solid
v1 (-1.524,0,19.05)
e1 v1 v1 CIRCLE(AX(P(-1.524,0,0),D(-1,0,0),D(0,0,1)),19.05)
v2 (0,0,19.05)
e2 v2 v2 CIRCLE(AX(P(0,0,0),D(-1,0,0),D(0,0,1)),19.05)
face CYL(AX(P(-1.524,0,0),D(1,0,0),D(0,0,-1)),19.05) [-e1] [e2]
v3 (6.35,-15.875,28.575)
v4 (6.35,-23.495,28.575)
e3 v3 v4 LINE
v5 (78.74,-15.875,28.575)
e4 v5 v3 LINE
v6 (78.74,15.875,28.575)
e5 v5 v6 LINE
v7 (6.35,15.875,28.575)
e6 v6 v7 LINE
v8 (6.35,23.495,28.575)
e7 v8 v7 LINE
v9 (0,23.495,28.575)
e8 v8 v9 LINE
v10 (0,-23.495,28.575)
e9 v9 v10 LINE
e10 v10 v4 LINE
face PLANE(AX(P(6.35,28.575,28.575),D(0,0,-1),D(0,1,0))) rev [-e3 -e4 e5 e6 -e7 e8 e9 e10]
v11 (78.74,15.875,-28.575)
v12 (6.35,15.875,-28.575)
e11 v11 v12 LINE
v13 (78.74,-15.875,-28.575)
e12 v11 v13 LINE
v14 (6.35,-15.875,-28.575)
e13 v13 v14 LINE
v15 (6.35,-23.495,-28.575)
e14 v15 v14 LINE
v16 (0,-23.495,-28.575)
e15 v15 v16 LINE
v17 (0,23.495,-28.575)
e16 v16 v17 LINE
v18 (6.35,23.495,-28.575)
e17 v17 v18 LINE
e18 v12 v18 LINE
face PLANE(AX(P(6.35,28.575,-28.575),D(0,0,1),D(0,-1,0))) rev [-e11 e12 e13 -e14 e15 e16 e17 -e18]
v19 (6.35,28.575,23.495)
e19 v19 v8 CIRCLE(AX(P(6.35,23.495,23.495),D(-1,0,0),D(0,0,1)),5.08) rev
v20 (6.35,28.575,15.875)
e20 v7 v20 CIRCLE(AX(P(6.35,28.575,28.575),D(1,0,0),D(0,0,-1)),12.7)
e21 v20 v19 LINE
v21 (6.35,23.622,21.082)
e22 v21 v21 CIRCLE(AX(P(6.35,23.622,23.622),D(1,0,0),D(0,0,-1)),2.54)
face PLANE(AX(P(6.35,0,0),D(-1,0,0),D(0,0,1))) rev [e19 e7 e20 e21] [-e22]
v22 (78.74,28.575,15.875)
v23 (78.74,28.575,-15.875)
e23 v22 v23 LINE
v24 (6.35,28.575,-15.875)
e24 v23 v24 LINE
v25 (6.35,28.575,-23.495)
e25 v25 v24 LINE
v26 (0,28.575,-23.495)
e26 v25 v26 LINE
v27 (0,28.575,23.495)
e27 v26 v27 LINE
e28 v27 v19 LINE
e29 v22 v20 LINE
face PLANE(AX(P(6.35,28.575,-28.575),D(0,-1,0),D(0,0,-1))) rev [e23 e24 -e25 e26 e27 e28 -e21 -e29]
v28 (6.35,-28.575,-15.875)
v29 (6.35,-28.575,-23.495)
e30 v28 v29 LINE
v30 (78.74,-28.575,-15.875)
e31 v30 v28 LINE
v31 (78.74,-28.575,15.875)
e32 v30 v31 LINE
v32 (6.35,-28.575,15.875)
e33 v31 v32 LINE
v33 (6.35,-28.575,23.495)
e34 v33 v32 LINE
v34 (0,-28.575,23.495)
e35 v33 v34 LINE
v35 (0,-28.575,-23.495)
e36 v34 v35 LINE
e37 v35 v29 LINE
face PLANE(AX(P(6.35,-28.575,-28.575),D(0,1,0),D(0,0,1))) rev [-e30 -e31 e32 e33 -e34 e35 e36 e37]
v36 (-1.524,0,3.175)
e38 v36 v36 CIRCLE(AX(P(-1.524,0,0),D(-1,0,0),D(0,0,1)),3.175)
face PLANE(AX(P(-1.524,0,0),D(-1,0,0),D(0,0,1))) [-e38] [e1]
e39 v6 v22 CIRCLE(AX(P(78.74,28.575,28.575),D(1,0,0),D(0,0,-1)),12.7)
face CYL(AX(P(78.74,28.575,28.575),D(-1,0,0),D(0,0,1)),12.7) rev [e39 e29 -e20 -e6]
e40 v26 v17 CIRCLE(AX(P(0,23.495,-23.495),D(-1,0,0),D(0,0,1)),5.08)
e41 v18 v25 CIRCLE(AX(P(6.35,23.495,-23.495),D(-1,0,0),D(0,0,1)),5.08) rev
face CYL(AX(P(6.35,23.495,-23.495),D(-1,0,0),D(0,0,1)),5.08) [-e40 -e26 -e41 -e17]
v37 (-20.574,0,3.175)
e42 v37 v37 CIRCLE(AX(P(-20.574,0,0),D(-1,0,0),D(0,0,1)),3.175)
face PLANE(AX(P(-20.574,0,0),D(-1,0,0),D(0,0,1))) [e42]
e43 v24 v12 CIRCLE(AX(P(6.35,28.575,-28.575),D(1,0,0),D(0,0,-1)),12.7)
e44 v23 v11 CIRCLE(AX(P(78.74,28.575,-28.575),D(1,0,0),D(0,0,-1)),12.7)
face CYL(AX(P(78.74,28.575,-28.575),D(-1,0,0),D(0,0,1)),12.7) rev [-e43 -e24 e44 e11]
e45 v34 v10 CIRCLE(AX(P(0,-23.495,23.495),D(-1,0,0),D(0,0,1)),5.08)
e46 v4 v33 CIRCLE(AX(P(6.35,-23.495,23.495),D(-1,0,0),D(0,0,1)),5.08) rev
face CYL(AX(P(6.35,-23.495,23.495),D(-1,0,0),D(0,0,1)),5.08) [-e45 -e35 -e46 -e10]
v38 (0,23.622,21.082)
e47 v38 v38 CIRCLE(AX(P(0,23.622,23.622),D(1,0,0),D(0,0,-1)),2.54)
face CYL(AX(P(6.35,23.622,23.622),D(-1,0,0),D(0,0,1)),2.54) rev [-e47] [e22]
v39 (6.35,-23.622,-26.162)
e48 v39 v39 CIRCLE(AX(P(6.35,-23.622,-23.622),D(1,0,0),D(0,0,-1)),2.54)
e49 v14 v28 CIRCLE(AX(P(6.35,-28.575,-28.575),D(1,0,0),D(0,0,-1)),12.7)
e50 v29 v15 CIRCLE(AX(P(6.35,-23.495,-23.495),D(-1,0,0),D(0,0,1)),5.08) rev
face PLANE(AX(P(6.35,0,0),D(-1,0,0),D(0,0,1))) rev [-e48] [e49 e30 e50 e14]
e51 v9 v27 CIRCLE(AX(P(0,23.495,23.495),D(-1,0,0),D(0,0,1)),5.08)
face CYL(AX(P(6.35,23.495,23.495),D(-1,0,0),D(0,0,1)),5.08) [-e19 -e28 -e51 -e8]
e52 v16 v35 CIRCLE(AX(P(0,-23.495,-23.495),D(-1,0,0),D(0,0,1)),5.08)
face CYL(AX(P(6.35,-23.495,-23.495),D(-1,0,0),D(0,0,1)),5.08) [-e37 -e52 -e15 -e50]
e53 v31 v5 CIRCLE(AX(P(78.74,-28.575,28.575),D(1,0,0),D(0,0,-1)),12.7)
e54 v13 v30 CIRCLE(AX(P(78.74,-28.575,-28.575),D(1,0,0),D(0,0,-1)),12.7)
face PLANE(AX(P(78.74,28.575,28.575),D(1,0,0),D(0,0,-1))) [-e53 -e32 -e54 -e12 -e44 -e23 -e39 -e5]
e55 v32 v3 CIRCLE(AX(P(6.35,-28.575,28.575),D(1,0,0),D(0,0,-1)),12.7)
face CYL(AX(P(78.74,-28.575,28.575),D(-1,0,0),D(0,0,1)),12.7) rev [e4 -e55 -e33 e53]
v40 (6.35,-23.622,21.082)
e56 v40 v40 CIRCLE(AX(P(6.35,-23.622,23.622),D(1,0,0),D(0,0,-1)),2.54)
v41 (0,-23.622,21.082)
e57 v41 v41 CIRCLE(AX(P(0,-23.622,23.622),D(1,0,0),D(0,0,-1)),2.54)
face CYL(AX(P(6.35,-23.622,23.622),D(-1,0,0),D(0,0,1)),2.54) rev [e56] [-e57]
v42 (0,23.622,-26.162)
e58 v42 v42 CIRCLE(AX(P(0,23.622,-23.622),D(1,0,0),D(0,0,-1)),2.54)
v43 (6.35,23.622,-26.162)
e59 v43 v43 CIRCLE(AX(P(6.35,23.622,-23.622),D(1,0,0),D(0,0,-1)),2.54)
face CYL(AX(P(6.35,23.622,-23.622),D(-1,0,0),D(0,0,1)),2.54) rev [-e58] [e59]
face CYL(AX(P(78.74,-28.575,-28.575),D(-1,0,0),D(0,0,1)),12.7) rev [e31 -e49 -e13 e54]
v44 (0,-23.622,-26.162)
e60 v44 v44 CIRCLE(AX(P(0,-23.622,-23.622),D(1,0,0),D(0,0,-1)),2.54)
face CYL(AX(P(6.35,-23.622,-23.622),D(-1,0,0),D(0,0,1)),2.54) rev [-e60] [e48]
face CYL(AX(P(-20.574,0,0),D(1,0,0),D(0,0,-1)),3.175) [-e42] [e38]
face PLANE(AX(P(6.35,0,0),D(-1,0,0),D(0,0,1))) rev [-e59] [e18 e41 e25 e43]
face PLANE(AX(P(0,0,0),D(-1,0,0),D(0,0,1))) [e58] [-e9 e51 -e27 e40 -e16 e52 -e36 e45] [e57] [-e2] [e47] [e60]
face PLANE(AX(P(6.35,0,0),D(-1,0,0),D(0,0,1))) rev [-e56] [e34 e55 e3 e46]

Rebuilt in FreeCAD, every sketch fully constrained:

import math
import FreeCAD as App
import Part
import Sketcher
from FreeCAD import Vector
Q = App.Units.Quantity


def edges_at(feature, points):
    """Names of the edges that pass closest to the given points."""
    edges = feature.Shape.Edges
    near = lambda p: min(range(len(edges)), key=lambda i: edges[i].distToShape(Part.Vertex(*p))[0])
    return sorted({f"Edge{near(p) + 1}" for p in points})


def add_polygon(sketch, points):
    """Adds a closed chain of lines whose ends are joined by coincident constraints."""
    first, n = sketch.GeometryCount, len(points)
    for a, b in zip(points, points[1:] + points[:1]):
        sketch.addGeometry(Part.LineSegment(App.Vector(*a, 0), App.Vector(*b, 0)), False)
    for i in range(n):
        sketch.addConstraint(Sketcher.Constraint("Coincident", first + i, 2, first + (i + 1) % n, 1))

doc = App.newDocument("Part")
body = doc.addObject("PartDesign::Body", "Body")

sketch1 = doc.addObject("Sketcher::SketchObject", "Sketch")
body.addObject(sketch1)
sketch1.AttachmentSupport = (doc.YZ_Plane, [""])
sketch1.MapMode = "FlatFace"
add_polygon(sketch1, [(28.6, 28.6), (-28.6, 28.6), (-28.6, -28.6), (28.6, -28.6)])
sketch1.addGeometry(Part.Circle(Vector(-23.6, 23.6, 0), Vector(0, 0, 1), 2.5), False)
sketch1.addGeometry(Part.Circle(Vector(-23.6, -23.6, 0), Vector(0, 0, 1), 2.5), False)
sketch1.addGeometry(Part.Circle(Vector(23.6, 23.6, 0), Vector(0, 0, 1), 2.5), False)
sketch1.addGeometry(Part.Circle(Vector(23.6, -23.6, 0), Vector(0, 0, 1), 2.5), False)
sketch1.addConstraint([
    Sketcher.Constraint("Horizontal", 0),
    Sketcher.Constraint("Vertical", 1),
    Sketcher.Constraint("Horizontal", 2),
    Sketcher.Constraint("Vertical", 3),
    Sketcher.Constraint("Equal", 4, 5),
    Sketcher.Constraint("Equal", 5, 6),
    Sketcher.Constraint("Equal", 6, 7),
    Sketcher.Constraint("Symmetric", 5, 3, 6, 3, -1, 1),
    Sketcher.Constraint("Symmetric", 4, 3, 7, 3, -1, 1),
    Sketcher.Constraint("Symmetric", 0, 2, 2, 2, -1, 1),
    Sketcher.Constraint("Symmetric", 4, 3, 6, 3, -2),
    Sketcher.Constraint("Equal", 2, 1),
    Sketcher.Constraint("Diameter", 4, Q("0.2 in")),
    Sketcher.Constraint("DistanceX", 0, 2, 0, 1, Q("2.25 in")),
    Sketcher.Constraint("DistanceX", 4, 3, -1, 1, Q("0.93 in")),
    Sketcher.Constraint("DistanceY", -1, 1, 4, 3, Q("0.93 in")),
])
pad1 = doc.addObject("PartDesign::Pad", "Pad")
body.addObject(pad1)
pad1.Profile = sketch1
pad1.Length = Q("0.25 in")
doc.recompute()

fillet = doc.addObject("PartDesign::Fillet", "Fillet")
body.addObject(fillet)
fillet.Base = (pad1, edges_at(pad1, [
    (3.175, 28.575, 28.575),
    (3.175, 28.575, -28.575),
    (3.175, -28.575, -28.575),
    (3.175, -28.575, 28.575),
]))
fillet.Radius = Q("0.2 in")

sketch2 = doc.addObject("Sketcher::SketchObject", "Sketch001")
body.addObject(sketch2)
sketch2.AttachmentSupport = (doc.YZ_Plane, [""])
sketch2.MapMode = "FlatFace"
sketch2.addGeometry(Part.Circle(Vector(0, 0, 0), Vector(0, 0, 1), 19), False)
sketch2.addConstraint([
    Sketcher.Constraint("Coincident", 0, 3, -1, 1),
    Sketcher.Constraint("Diameter", 0, Q("1.5 in")),
])
pad2 = doc.addObject("PartDesign::Pad", "Pad001")
body.addObject(pad2)
pad2.Profile = sketch2
pad2.Length = Q("0.06 in")
pad2.Reversed = True

sketch3 = doc.addObject("Sketcher::SketchObject", "Sketch002")
body.addObject(sketch3)
sketch3.AttachmentSupport = (doc.YZ_Plane, [""])
sketch3.MapMode = "FlatFace"
sketch3.AttachmentOffset = App.Placement(Vector(0, 0, -0.06 * 25.4), App.Rotation())
sketch3.addGeometry(Part.Circle(Vector(0, 0, 0), Vector(0, 0, 1), 3.2), False)
sketch3.addConstraint([
    Sketcher.Constraint("Coincident", 0, 3, -1, 1),
    Sketcher.Constraint("Diameter", 0, Q("0.25 in")),
])
pad3 = doc.addObject("PartDesign::Pad", "Pad002")
body.addObject(pad3)
pad3.Profile = sketch3
pad3.Length = Q("0.75 in")
pad3.Reversed = True

sketch4 = doc.addObject("Sketcher::SketchObject", "Sketch003")
body.addObject(sketch4)
sketch4.AttachmentSupport = (doc.YZ_Plane, [""])
sketch4.MapMode = "FlatFace"
sketch4.AttachmentOffset = App.Placement(Vector(0, 0, 0.25 * 25.4), App.Rotation())
sketch4.addGeometry([
    Part.LineSegment(Vector(29, -16, 0), Vector(29, 16, 0)),
    Part.ArcOfCircle(Part.Circle(Vector(29, 29, 0), Vector(0, 0, 1), 13), math.radians(180), math.radians(270)),
    Part.LineSegment(Vector(16, 29, 0), Vector(-16, 29, 0)),
    Part.ArcOfCircle(Part.Circle(Vector(-29, 29, 0), Vector(0, 0, 1), 13), math.radians(-90), math.radians(0)),
    Part.LineSegment(Vector(-29, 16, 0), Vector(-29, -16, 0)),
    Part.ArcOfCircle(Part.Circle(Vector(-29, -29, 0), Vector(0, 0, 1), 13), math.radians(0), math.radians(90)),
    Part.LineSegment(Vector(-16, -29, 0), Vector(16, -29, 0)),
    Part.ArcOfCircle(Part.Circle(Vector(29, -29, 0), Vector(0, 0, 1), 13), math.radians(90), math.radians(180)),
], False)
sketch4.addConstraint([
    Sketcher.Constraint("Coincident", 0, 2, 1, 2),
    Sketcher.Constraint("Coincident", 1, 1, 2, 1),
    Sketcher.Constraint("Coincident", 2, 2, 3, 2),
    Sketcher.Constraint("Coincident", 3, 1, 4, 1),
    Sketcher.Constraint("Coincident", 4, 2, 5, 2),
    Sketcher.Constraint("Coincident", 5, 1, 6, 1),
    Sketcher.Constraint("Coincident", 6, 2, 7, 2),
    Sketcher.Constraint("Coincident", 7, 1, 0, 1),
    Sketcher.Constraint("Vertical", 0),
    Sketcher.Constraint("Horizontal", 2),
    Sketcher.Constraint("Vertical", 4),
    Sketcher.Constraint("Horizontal", 6),
    Sketcher.Constraint("Equal", 1, 3),
    Sketcher.Constraint("Equal", 3, 5),
    Sketcher.Constraint("Equal", 5, 7),
    Sketcher.Constraint("Symmetric", 1, 3, 5, 3, -1, 1),
    Sketcher.Constraint("Symmetric", 3, 3, 7, 3, -1, 1),
    Sketcher.Constraint("Symmetric", 1, 3, 3, 3, -2),
    Sketcher.Constraint("Horizontal", 3, 3, 1, 1),
    Sketcher.Constraint("Horizontal", 7, 3, 5, 1),
    Sketcher.Constraint("Vertical", 7, 3, 0, 2),
    Sketcher.Constraint("Vertical", 5, 3, 3, 1),
    Sketcher.Constraint("Equal", 6, 0),
    Sketcher.Constraint("Radius", 1, Q("0.5 in")),
    Sketcher.Constraint("DistanceX", 2, 2, 2, 1, Q("1.25 in")),
])
pad4 = doc.addObject("PartDesign::Pad", "Pad003")
body.addObject(pad4)
pad4.Profile = sketch4
pad4.Length = Q("2.85 in")

doc.recompute()
